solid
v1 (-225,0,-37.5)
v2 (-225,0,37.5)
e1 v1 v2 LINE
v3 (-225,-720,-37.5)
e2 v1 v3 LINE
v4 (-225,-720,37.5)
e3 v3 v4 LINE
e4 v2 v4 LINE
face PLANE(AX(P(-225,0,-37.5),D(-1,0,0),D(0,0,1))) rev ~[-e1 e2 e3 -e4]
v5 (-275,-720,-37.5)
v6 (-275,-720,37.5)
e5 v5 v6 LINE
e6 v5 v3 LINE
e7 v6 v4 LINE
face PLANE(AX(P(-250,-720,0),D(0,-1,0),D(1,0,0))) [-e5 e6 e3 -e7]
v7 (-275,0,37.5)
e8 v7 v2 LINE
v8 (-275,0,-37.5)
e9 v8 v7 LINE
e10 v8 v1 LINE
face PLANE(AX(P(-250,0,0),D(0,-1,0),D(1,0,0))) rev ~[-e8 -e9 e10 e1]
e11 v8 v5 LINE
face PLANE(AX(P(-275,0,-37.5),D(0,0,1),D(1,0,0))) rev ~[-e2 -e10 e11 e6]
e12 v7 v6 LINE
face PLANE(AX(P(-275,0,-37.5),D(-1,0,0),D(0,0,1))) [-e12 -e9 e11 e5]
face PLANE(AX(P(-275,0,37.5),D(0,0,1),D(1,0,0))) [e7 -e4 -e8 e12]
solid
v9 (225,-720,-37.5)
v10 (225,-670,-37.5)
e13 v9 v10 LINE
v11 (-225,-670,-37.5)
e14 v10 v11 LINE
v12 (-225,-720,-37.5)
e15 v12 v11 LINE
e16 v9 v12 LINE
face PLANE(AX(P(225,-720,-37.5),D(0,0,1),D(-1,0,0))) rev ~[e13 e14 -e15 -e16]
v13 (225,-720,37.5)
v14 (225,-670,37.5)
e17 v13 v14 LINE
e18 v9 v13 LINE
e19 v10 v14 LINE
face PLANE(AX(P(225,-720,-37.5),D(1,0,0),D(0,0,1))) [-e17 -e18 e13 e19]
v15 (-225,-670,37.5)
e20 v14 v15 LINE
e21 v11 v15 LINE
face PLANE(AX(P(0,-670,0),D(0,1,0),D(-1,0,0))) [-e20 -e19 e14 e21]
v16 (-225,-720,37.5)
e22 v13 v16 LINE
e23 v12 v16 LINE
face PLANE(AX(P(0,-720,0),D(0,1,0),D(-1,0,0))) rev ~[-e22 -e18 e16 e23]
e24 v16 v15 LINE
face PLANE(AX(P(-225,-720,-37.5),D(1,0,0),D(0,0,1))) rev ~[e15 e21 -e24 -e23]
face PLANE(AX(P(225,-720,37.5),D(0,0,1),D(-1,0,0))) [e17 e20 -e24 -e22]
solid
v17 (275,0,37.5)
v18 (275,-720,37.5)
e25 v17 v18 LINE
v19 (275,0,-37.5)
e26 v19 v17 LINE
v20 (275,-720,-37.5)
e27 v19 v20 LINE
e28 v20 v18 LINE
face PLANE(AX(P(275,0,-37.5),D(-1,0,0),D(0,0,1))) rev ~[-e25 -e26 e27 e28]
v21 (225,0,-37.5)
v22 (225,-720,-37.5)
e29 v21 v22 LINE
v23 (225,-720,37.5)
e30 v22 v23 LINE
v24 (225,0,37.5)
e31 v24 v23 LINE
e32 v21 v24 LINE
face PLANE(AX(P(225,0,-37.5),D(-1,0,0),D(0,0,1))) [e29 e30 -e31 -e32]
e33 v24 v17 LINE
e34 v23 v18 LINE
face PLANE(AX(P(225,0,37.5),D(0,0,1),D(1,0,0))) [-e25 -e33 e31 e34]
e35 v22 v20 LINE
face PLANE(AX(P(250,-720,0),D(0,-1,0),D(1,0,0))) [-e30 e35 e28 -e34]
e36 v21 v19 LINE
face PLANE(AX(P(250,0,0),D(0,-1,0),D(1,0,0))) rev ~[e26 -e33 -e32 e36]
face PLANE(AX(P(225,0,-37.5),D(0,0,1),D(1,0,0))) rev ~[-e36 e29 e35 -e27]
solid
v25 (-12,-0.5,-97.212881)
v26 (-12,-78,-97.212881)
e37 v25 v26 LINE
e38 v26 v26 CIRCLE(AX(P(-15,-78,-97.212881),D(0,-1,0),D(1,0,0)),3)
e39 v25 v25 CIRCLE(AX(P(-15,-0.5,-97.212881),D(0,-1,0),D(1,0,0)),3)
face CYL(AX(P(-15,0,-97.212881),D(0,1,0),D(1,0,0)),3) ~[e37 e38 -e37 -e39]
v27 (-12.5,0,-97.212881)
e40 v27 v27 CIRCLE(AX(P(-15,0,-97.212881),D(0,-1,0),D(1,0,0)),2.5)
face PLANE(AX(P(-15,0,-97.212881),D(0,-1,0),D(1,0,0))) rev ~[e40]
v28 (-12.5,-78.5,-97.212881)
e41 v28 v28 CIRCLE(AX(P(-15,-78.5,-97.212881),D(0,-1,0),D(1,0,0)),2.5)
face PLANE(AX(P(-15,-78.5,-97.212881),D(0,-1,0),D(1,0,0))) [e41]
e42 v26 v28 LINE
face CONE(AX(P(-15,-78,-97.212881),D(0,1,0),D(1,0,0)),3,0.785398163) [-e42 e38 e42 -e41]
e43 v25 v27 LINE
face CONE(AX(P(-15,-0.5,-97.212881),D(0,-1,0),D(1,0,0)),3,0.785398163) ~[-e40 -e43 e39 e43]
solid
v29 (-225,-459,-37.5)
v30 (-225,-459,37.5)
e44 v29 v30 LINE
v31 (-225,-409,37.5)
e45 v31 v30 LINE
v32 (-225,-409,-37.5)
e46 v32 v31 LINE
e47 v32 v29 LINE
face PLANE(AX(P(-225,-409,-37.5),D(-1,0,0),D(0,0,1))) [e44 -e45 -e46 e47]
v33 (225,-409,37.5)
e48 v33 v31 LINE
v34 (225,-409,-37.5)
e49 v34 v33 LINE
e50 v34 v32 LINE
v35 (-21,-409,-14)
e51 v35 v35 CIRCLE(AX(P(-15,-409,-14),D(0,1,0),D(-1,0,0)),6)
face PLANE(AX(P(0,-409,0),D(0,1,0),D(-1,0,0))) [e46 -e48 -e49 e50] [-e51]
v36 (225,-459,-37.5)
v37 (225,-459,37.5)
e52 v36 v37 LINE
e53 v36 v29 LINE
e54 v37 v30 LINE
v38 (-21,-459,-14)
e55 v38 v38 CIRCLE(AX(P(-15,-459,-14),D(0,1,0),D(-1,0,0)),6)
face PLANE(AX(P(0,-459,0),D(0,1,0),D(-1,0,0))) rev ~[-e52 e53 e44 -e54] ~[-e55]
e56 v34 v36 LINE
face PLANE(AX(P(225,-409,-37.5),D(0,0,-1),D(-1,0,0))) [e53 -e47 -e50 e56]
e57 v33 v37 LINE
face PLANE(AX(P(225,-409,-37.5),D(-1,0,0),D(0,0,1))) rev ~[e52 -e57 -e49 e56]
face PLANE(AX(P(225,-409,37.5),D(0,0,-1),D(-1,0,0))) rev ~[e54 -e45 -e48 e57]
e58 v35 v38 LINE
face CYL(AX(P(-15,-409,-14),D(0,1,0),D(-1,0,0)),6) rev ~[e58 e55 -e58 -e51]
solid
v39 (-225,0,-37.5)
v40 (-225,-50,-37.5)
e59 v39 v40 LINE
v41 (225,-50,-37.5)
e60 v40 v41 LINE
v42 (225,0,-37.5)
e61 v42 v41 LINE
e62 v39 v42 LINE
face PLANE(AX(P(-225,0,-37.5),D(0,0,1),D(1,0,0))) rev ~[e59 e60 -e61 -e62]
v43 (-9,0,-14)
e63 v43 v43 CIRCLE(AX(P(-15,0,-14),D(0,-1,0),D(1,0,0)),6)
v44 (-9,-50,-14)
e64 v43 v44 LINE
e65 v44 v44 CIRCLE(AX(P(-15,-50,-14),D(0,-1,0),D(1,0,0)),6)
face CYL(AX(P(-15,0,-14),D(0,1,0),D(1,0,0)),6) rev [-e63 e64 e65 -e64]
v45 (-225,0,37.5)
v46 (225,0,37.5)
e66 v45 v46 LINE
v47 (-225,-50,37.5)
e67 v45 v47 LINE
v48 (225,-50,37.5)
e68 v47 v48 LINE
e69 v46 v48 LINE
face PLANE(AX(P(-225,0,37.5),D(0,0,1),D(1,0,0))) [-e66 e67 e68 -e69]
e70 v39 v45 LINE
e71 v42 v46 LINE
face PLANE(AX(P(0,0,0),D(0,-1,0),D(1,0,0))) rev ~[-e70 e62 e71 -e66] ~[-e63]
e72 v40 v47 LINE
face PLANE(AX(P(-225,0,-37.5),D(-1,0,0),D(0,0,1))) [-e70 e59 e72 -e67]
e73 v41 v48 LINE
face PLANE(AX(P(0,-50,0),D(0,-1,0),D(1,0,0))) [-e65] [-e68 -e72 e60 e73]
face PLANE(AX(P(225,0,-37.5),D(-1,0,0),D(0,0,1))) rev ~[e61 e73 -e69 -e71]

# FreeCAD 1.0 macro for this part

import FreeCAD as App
import Part
import Sketcher

V = App.Vector


def edges_at(feature, points):
    """Names of the edges that pass closest to the given points."""
    edges = feature.Shape.Edges
    near = lambda p: min(range(len(edges)), key=lambda i: edges[i].distToShape(Part.Vertex(*p))[0])
    return sorted({f"Edge{near(p) + 1}" for p in points})

doc = App.newDocument("Part")
body = doc.addObject("PartDesign::Body", "Body")

sketch1 = body.newObject("Sketcher::SketchObject", "Sketch")
sketch1.AttachmentSupport = (doc.getObject("XZ_Plane"), [""])
sketch1.MapMode = "FlatFace"
sketch1.addGeometry([
    Part.LineSegment(V(-225, 37.5, 0), V(-225, -37.5, 0)),
    Part.LineSegment(V(-225, -37.5, 0), V(225, -37.5, 0)),
    Part.LineSegment(V(225, -37.5, 0), V(225, 37.5, 0)),
    Part.LineSegment(V(225, 37.5, 0), V(-225, 37.5, 0)),
    Part.Circle(V(-15, -14, 0), V(0, 0, 1), 6),
], False)
sketch1.addConstraint([
    Sketcher.Constraint("Coincident", 0, 2, 1, 1),
    Sketcher.Constraint("Coincident", 1, 2, 2, 1),
    Sketcher.Constraint("Coincident", 2, 2, 3, 1),
    Sketcher.Constraint("Coincident", 3, 2, 0, 1),
    Sketcher.Constraint("Vertical", 0),
    Sketcher.Constraint("Horizontal", 1),
    Sketcher.Constraint("Vertical", 2),
    Sketcher.Constraint("Horizontal", 3),
    Sketcher.Constraint("Symmetric", 0, 2, 2, 2, -1, 1),
    Sketcher.Constraint("Diameter", 4, 12.0),
    Sketcher.Constraint("DistanceX", 1, 1, 1, 2, 450.0),
    Sketcher.Constraint("DistanceY", 0, 2, 0, 1, 75.0),
    Sketcher.Constraint("DistanceX", 4, 3, -1, 1, 15.0),
    Sketcher.Constraint("DistanceY", 4, 3, -1, 1, 14.0),
])
pad1 = body.newObject("PartDesign::Pad", "Pad")
pad1.Profile = sketch1
pad1.Length = 50
body2 = doc.addObject("PartDesign::Body", "Body001")

sketch2 = body2.newObject("Sketcher::SketchObject", "Sketch001")
sketch2.AttachmentSupport = (doc.getObject("XZ_Plane001"), [""])
sketch2.MapMode = "FlatFace"
sketch2.addGeometry([
    Part.LineSegment(V(225, 37.5, 0), V(225, -37.5, 0)),
    Part.LineSegment(V(225, -37.5, 0), V(275, -37.5, 0)),
    Part.LineSegment(V(275, -37.5, 0), V(275, 37.5, 0)),
    Part.LineSegment(V(275, 37.5, 0), V(225, 37.5, 0)),
], False)
sketch2.addConstraint([
    Sketcher.Constraint("Coincident", 0, 2, 1, 1),
    Sketcher.Constraint("Coincident", 1, 2, 2, 1),
    Sketcher.Constraint("Coincident", 2, 2, 3, 1),
    Sketcher.Constraint("Coincident", 3, 2, 0, 1),
    Sketcher.Constraint("Vertical", 0),
    Sketcher.Constraint("Horizontal", 1),
    Sketcher.Constraint("Vertical", 2),
    Sketcher.Constraint("Horizontal", 3),
    Sketcher.Constraint("DistanceX", 1, 1, 1, 2, 50.0),
    Sketcher.Constraint("DistanceY", 0, 2, 0, 1, 75.0),
    Sketcher.Constraint("DistanceX", -1, 1, 0, 2, 225.0),
    Sketcher.Constraint("DistanceY", 0, 2, -1, 1, 37.5),
])
pad2 = body2.newObject("PartDesign::Pad", "Pad001")
pad2.Profile = sketch2
pad2.Length = 720
body3 = doc.addObject("PartDesign::Body", "Body002")

sketch3 = body3.newObject("Sketcher::SketchObject", "Sketch002")
sketch3.AttachmentSupport = (doc.getObject("XZ_Plane002"), [""])
sketch3.MapMode = "FlatFace"
sketch3.addGeometry([
    Part.LineSegment(V(-275, 37.5, 0), V(-275, -37.5, 0)),
    Part.LineSegment(V(-275, -37.5, 0), V(-225, -37.5, 0)),
    Part.LineSegment(V(-225, -37.5, 0), V(-225, 37.5, 0)),
    Part.LineSegment(V(-225, 37.5, 0), V(-275, 37.5, 0)),
], False)
sketch3.addConstraint([
    Sketcher.Constraint("Coincident", 0, 2, 1, 1),
    Sketcher.Constraint("Coincident", 1, 2, 2, 1),
    Sketcher.Constraint("Coincident", 2, 2, 3, 1),
    Sketcher.Constraint("Coincident", 3, 2, 0, 1),
    Sketcher.Constraint("Vertical", 0),
    Sketcher.Constraint("Horizontal", 1),
    Sketcher.Constraint("Vertical", 2),
    Sketcher.Constraint("Horizontal", 3),
    Sketcher.Constraint("DistanceX", 1, 1, 1, 2, 50.0),
    Sketcher.Constraint("DistanceY", 0, 2, 0, 1, 75.0),
    Sketcher.Constraint("DistanceX", 0, 2, -1, 1, 275.0),
    Sketcher.Constraint("DistanceY", 0, 2, -1, 1, 37.5),
])
pad3 = body3.newObject("PartDesign::Pad", "Pad002")
pad3.Profile = sketch3
pad3.Length = 720
body4 = doc.addObject("PartDesign::Body", "Body003")

sketch4 = body4.newObject("Sketcher::SketchObject", "Sketch003")
sketch4.AttachmentSupport = (doc.getObject("XZ_Plane003"), [""])
sketch4.MapMode = "FlatFace"
sketch4.AttachmentOffset = App.Placement(V(0, 0, 409), App.Rotation())
sketch4.addGeometry([
    Part.LineSegment(V(225, 37.5, 0), V(225, -37.5, 0)),
    Part.LineSegment(V(225, -37.5, 0), V(-225, -37.5, 0)),
    Part.LineSegment(V(-225, -37.5, 0), V(-225, 37.5, 0)),
    Part.LineSegment(V(-225, 37.5, 0), V(225, 37.5, 0)),
    Part.Circle(V(-15, -14, 0), V(0, 0, 1), 6),
], False)
sketch4.addConstraint([
    Sketcher.Constraint("Coincident", 0, 2, 1, 1),
    Sketcher.Constraint("Coincident", 1, 2, 2, 1),
    Sketcher.Constraint("Coincident", 2, 2, 3, 1),
    Sketcher.Constraint("Coincident", 3, 2, 0, 1),
    Sketcher.Constraint("Vertical", 0),
    Sketcher.Constraint("Horizontal", 1),
    Sketcher.Constraint("Vertical", 2),
    Sketcher.Constraint("Horizontal", 3),
    Sketcher.Constraint("Symmetric", 0, 2, 2, 2, -1, 1),
    Sketcher.Constraint("Diameter", 4, 12.0),
    Sketcher.Constraint("DistanceX", 1, 2, 1, 1, 450.0),
    Sketcher.Constraint("DistanceY", 0, 2, 0, 1, 75.0),
    Sketcher.Constraint("DistanceX", 4, 3, -1, 1, 15.0),
    Sketcher.Constraint("DistanceY", 4, 3, -1, 1, 14.0),
])
pad4 = body4.newObject("PartDesign::Pad", "Pad003")
pad4.Profile = sketch4
pad4.Length = 50
body5 = doc.addObject("PartDesign::Body", "Body004")

sketch5 = body5.newObject("Sketcher::SketchObject", "Sketch004")
sketch5.AttachmentSupport = (doc.getObject("XZ_Plane004"), [""])
sketch5.MapMode = "FlatFace"
sketch5.AttachmentOffset = App.Placement(V(0, 0, 720), App.Rotation())
sketch5.addGeometry([
    Part.LineSegment(V(225, 37.5, 0), V(225, -37.5, 0)),
    Part.LineSegment(V(225, -37.5, 0), V(-225, -37.5, 0)),
    Part.LineSegment(V(-225, -37.5, 0), V(-225, 37.5, 0)),
    Part.LineSegment(V(-225, 37.5, 0), V(225, 37.5, 0)),
], False)
sketch5.addConstraint([
    Sketcher.Constraint("Coincident", 0, 2, 1, 1),
    Sketcher.Constraint("Coincident", 1, 2, 2, 1),
    Sketcher.Constraint("Coincident", 2, 2, 3, 1),
    Sketcher.Constraint("Coincident", 3, 2, 0, 1),
    Sketcher.Constraint("Vertical", 0),
    Sketcher.Constraint("Horizontal", 1),
    Sketcher.Constraint("Vertical", 2),
    Sketcher.Constraint("Horizontal", 3),
    Sketcher.Constraint("Symmetric", 0, 2, 2, 2, -1, 1),
    Sketcher.Constraint("DistanceX", 1, 2, 1, 1, 450.0),
    Sketcher.Constraint("DistanceY", 0, 2, 0, 1, 75.0),
])
pad5 = body5.newObject("PartDesign::Pad", "Pad004")
pad5.Profile = sketch5
pad5.Length = 50
pad5.Reversed = True
body6 = doc.addObject("PartDesign::Body", "Body005")

sketch6 = body6.newObject("Sketcher::SketchObject", "Sketch005")
sketch6.AttachmentSupport = (doc.getObject("XZ_Plane005"), [""])
sketch6.MapMode = "FlatFace"
sketch6.addGeometry([
    Part.LineSegment(V(275, -37.5, 0), V(275, 37.5, 0)),
    Part.LineSegment(V(275, 37.5, 0), V(-275, 37.5, 0)),
    Part.LineSegment(V(-275, 37.5, 0), V(-275, -37.5, 0)),
    Part.LineSegment(V(-275, -37.5, 0), V(275, -37.5, 0)),
    Part.Circle(V(-15, -14, 0), V(0, 0, 1), 6),
], False)
sketch6.addConstraint([
    Sketcher.Constraint("Coincident", 0, 2, 1, 1),
    Sketcher.Constraint("Coincident", 1, 2, 2, 1),
    Sketcher.Constraint("Coincident", 2, 2, 3, 1),
    Sketcher.Constraint("Coincident", 3, 2, 0, 1),
    Sketcher.Constraint("Vertical", 0),
    Sketcher.Constraint("Horizontal", 1),
    Sketcher.Constraint("Vertical", 2),
    Sketcher.Constraint("Horizontal", 3),
    Sketcher.Constraint("Symmetric", 0, 2, 2, 2, -1, 1),
    Sketcher.Constraint("Diameter", 4, 12.0),
    Sketcher.Constraint("DistanceX", 1, 2, 1, 1, 550.0),
    Sketcher.Constraint("DistanceY", 0, 1, 0, 2, 75.0),
    Sketcher.Constraint("DistanceX", 4, 3, -1, 1, 15.0),
    Sketcher.Constraint("DistanceY", 4, 3, -1, 1, 14.0),
])
pad6 = body6.newObject("PartDesign::Pad", "Pad005")
pad6.Profile = sketch6
pad6.Length = 78.5
body7 = doc.addObject("PartDesign::Body", "Body006")

sketch7 = body7.newObject("Sketcher::SketchObject", "Sketch006")
sketch7.AttachmentSupport = (doc.getObject("XZ_Plane006"), [""])
sketch7.MapMode = "FlatFace"
sketch7.addGeometry(Part.Circle(V(-15, -97.212881, 0), V(0, 0, 1), 3), False)
sketch7.addConstraint([
    Sketcher.Constraint("Diameter", 0, 6.0),
    Sketcher.Constraint("DistanceX", 0, 3, -1, 1, 15.0),
    Sketcher.Constraint("DistanceY", 0, 3, -1, 1, 97.212881),
])
pad7 = body7.newObject("PartDesign::Pad", "Pad006")
pad7.Profile = sketch7
pad7.Length = 78.5
doc.recompute()

chamfer = body7.newObject("PartDesign::Chamfer", "Chamfer")
chamfer.Base = (pad7, edges_at(pad7, [(-18, 0, -97.213), (-18, -78.5, -97.213)]))
chamfer.Size = 0.5
body8 = doc.addObject("PartDesign::Body", "Body007")

sketch8 = body8.newObject("Sketcher::SketchObject", "Sketch007")
sketch8.AttachmentSupport = (doc.getObject("XZ_Plane007"), [""])
sketch8.MapMode = "FlatFace"
sketch8.addGeometry([
    Part.LineSegment(V(225, 37.5, 0), V(225, -37.5, 0)),
    Part.LineSegment(V(225, -37.5, 0), V(275, -37.5, 0)),
    Part.LineSegment(V(275, -37.5, 0), V(275, 37.5, 0)),
    Part.LineSegment(V(275, 37.5, 0), V(225, 37.5, 0)),
], False)
sketch8.addConstraint([
    Sketcher.Constraint("Coincident", 0, 2, 1, 1),
    Sketcher.Constraint("Coincident", 1, 2, 2, 1),
    Sketcher.Constraint("Coincident", 2, 2, 3, 1),
    Sketcher.Constraint("Coincident", 3, 2, 0, 1),
    Sketcher.Constraint("Vertical", 0),
    Sketcher.Constraint("Horizontal", 1),
    Sketcher.Constraint("Vertical", 2),
    Sketcher.Constraint("Horizontal", 3),
    Sketcher.Constraint("DistanceX", 1, 1, 1, 2, 50.0),
    Sketcher.Constraint("DistanceY", 0, 2, 0, 1, 75.0),
    Sketcher.Constraint("DistanceX", -1, 1, 0, 2, 225.0),
    Sketcher.Constraint("DistanceY", 0, 2, -1, 1, 37.5),
])
pad8 = body8.newObject("PartDesign::Pad", "Pad007")
pad8.Profile = sketch8
pad8.Length = 720
body9 = doc.addObject("PartDesign::Body", "Body008")

sketch9 = body9.newObject("Sketcher::SketchObject", "Sketch008")
sketch9.AttachmentSupport = (doc.getObject("XZ_Plane008"), [""])
sketch9.MapMode = "FlatFace"
sketch9.addGeometry([
    Part.LineSegment(V(225, 37.5, 0), V(225, -37.5, 0)),
    Part.LineSegment(V(225, -37.5, 0), V(275, -37.5, 0)),
    Part.LineSegment(V(275, -37.5, 0), V(275, 37.5, 0)),
    Part.LineSegment(V(275, 37.5, 0), V(225, 37.5, 0)),
], False)
sketch9.addConstraint([
    Sketcher.Constraint("Coincident", 0, 2, 1, 1),
    Sketcher.Constraint("Coincident", 1, 2, 2, 1),
    Sketcher.Constraint("Coincident", 2, 2, 3, 1),
    Sketcher.Constraint("Coincident", 3, 2, 0, 1),
    Sketcher.Constraint("Vertical", 0),
    Sketcher.Constraint("Horizontal", 1),
    Sketcher.Constraint("Vertical", 2),
    Sketcher.Constraint("Horizontal", 3),
    Sketcher.Constraint("DistanceX", 1, 1, 1, 2, 50.0),
    Sketcher.Constraint("DistanceY", 0, 2, 0, 1, 75.0),
    Sketcher.Constraint("DistanceX", -1, 1, 0, 2, 225.0),
    Sketcher.Constraint("DistanceY", 0, 2, -1, 1, 37.5),
])
pad9 = body9.newObject("PartDesign::Pad", "Pad008")
pad9.Profile = sketch9
pad9.Length = 720
body2.Visibility = False
body6.Visibility = False
body8.Visibility = False

doc.recompute()
